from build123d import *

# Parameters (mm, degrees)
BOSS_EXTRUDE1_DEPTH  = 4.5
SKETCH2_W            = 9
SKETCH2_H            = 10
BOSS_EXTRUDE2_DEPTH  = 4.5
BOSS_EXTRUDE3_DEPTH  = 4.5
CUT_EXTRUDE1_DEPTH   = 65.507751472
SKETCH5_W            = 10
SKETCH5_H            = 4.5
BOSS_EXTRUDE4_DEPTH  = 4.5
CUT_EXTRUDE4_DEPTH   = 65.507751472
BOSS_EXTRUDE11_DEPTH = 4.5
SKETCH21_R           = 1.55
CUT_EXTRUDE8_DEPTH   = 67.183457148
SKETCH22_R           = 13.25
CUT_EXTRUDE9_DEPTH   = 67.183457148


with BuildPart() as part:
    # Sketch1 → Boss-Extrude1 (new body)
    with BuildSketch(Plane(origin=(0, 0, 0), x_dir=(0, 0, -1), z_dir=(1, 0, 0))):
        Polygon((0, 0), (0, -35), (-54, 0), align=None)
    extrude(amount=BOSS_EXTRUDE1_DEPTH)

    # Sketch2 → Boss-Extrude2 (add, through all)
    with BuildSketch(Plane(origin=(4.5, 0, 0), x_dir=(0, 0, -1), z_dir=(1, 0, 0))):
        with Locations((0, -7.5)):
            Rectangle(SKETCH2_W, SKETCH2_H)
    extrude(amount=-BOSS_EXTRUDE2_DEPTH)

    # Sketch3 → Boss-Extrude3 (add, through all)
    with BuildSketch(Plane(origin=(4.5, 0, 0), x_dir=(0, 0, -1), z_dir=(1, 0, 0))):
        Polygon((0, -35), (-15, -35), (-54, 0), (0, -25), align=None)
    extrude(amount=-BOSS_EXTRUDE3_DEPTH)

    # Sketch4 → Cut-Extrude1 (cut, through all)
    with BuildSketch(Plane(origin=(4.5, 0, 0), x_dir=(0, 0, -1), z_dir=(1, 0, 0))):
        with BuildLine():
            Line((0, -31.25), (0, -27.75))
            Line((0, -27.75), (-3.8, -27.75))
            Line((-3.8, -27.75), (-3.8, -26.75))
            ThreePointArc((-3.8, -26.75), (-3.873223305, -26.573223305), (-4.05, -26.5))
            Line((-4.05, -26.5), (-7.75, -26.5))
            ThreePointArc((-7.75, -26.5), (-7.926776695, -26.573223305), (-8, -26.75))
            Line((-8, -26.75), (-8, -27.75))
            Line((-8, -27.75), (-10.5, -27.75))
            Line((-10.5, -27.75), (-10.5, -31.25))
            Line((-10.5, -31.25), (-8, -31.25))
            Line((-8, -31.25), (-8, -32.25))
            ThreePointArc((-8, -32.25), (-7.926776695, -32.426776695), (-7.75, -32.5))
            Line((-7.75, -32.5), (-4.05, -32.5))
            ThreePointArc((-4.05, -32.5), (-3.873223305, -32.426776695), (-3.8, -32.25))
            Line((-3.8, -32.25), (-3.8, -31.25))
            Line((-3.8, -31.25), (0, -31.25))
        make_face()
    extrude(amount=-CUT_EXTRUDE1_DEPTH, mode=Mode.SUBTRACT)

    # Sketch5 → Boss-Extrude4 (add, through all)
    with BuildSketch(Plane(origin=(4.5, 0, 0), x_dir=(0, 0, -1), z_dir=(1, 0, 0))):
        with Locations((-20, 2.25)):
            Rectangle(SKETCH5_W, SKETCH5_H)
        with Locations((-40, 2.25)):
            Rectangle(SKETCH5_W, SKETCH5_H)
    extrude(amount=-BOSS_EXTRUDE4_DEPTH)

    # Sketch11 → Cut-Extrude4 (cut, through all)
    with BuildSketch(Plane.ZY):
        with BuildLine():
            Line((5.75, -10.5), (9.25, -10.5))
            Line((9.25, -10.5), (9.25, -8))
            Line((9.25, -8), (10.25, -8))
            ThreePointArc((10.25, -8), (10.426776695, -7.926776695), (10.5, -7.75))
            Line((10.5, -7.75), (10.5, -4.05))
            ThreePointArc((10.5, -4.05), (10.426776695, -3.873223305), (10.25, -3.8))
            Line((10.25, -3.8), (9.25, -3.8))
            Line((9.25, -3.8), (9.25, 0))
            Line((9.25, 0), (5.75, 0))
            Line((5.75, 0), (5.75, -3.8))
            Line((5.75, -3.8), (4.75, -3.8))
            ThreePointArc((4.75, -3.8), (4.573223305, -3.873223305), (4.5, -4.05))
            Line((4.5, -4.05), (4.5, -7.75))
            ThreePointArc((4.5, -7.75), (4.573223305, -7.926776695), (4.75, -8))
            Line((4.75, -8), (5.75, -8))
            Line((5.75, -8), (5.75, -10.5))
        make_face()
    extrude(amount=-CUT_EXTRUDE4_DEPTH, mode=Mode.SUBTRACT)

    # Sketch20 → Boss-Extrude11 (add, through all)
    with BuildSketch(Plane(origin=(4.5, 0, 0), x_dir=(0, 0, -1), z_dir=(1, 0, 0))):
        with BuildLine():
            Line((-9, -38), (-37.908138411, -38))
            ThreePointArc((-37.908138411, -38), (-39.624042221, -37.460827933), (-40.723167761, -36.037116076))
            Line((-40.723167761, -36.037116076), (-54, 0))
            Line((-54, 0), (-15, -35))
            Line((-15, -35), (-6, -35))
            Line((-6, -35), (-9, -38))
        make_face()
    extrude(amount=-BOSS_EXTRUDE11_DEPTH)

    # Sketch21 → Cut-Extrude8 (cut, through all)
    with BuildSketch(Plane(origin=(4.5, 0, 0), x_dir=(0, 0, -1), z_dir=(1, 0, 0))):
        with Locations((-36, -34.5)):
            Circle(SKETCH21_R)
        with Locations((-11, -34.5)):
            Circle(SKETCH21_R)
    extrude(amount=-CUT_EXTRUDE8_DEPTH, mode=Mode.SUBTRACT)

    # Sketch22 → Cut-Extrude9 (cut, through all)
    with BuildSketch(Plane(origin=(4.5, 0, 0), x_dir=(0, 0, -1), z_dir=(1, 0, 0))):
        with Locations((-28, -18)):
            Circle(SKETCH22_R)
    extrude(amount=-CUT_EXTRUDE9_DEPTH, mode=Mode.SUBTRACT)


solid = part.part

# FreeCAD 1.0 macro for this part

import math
import FreeCAD as App
import Part
import Sketcher

V = App.Vector
Q = App.Units.Quantity

doc = App.newDocument("Part")
params = doc.addObject("Spreadsheet::Sheet", "Params")
for row, (alias, value) in enumerate([
    ("sketch1_width", "35 mm"),
    ("sketch1_height", "54 mm"),
    ("pad1_length", "4.5 mm"),
    ("sketch2_width", "10 mm"),
    ("sketch2_height", "9 mm"),
    ("sketch3_width", "10 mm"),
    ("sketch3_height", "15 mm"),
    ("sketch4_width", "1 mm"),
    ("sketch4_radius", "0.25 mm"),
    ("sketch4_width2", "3.5 mm"),
    ("sketch4_height", "3.8 mm"),
    ("sketch4_height2", "3.7 mm"),
    ("sketch5_height", "10 mm"),
    ("sketch5_width", "4.5 mm"),
    ("pad4_length", "4.5 mm"),
    ("sketch6_height", "1 mm"),
    ("sketch6_radius", "0.25 mm"),
    ("sketch6_width", "2.5 mm"),
    ("sketch6_width2", "3.7 mm"),
    ("sketch6_width3", "3.8 mm"),
    ("sketch7_radius", "3 mm"),
    ("sketch7_height", "9 mm"),
    ("pad5_length", "4.5 mm"),
    ("sketch8_diameter", "3.1 mm"),
    ("sketch9_diameter", "26.5 mm"),
], start=1):
    params.set(f"A{row}", alias)
    params.set(f"B{row}", "=" + value)
    params.setAlias(f"B{row}", alias)

body = doc.addObject("PartDesign::Body", "Body")

sketch1 = body.newObject("Sketcher::SketchObject", "Sketch")
sketch1.AttachmentSupport = (doc.getObject("YZ_Plane"), [""])
sketch1.MapMode = "FlatFace"
sketch1.addGeometry(Part.LineSegment(V(-35, 0, 0), V(0, 0, 0)), False)
sketch1.addGeometry(Part.LineSegment(V(0, 0, 0), V(0, 54, 0)), False)
sketch1.addGeometry(Part.LineSegment(V(0, 54, 0), V(-35, 0, 0)), False)
sketch1.addConstraint(Sketcher.Constraint("Coincident", 0, 2, 1, 1))
sketch1.addConstraint(Sketcher.Constraint("Coincident", 1, 2, 2, 1))
sketch1.addConstraint(Sketcher.Constraint("Coincident", 2, 2, 0, 1))
sketch1.addConstraint(Sketcher.Constraint("Horizontal", 0))
sketch1.addConstraint(Sketcher.Constraint("Vertical", 1))
sketch1.addConstraint(Sketcher.Constraint("Coincident", 0, 2, -1, 1))
sketch1.addConstraint(Sketcher.Constraint("DistanceX", 0, 1, 0, 2, Q("35 mm")))
sketch1.addConstraint(Sketcher.Constraint("DistanceY", 1, 1, 1, 2, Q("54 mm")))
sketch1.setExpression("Constraints[6]", "Params.sketch1_width")
sketch1.setExpression("Constraints[7]", "Params.sketch1_height")
pad1 = body.newObject("PartDesign::Pad", "Pad")
pad1.Profile = sketch1
pad1.setExpression("Length", "Params.pad1_length")

sketch2 = body.newObject("Sketcher::SketchObject", "Sketch001")
sketch2.AttachmentSupport = (doc.getObject("YZ_Plane"), [""])
sketch2.MapMode = "FlatFace"
sketch2.AttachmentOffset = App.Placement(V(0, 0, 4.5), App.Rotation())
sketch2.addGeometry(Part.LineSegment(V(-2, 4, 0), V(-12, 4, 0)), False)
sketch2.addGeometry(Part.LineSegment(V(-12, 4, 0), V(-12, -4, 0)), False)
sketch2.addGeometry(Part.LineSegment(V(-12, -4, 0), V(-2, -4, 0)), False)
sketch2.addGeometry(Part.LineSegment(V(-2, -4, 0), V(-2, 4, 0)), False)
sketch2.addConstraint(Sketcher.Constraint("Coincident", 0, 2, 1, 1))
sketch2.addConstraint(Sketcher.Constraint("Coincident", 1, 2, 2, 1))
sketch2.addConstraint(Sketcher.Constraint("Coincident", 2, 2, 3, 1))
sketch2.addConstraint(Sketcher.Constraint("Coincident", 3, 2, 0, 1))
sketch2.addConstraint(Sketcher.Constraint("Horizontal", 0))
sketch2.addConstraint(Sketcher.Constraint("Vertical", 1))
sketch2.addConstraint(Sketcher.Constraint("Horizontal", 2))
sketch2.addConstraint(Sketcher.Constraint("Vertical", 3))
sketch2.addConstraint(Sketcher.Constraint("DistanceX", 0, 2, 0, 1, Q("10 mm")))
sketch2.addConstraint(Sketcher.Constraint("DistanceY", 1, 2, 1, 1, Q("9 mm")))
sketch2.addConstraint(Sketcher.Constraint("DistanceX", 0, 2, -1, 1, Q("12.5 mm")))
sketch2.addConstraint(Sketcher.Constraint("DistanceY", -1, 1, 0, 2, Q("4.5 mm")))
sketch2.setExpression("Constraints[8]", "Params.sketch2_width")
sketch2.setExpression("Constraints[9]", "Params.sketch2_height")
pad2 = body.newObject("PartDesign::Pad", "Pad001")
pad2.Profile = sketch2
pad2.Type = "UpToLast"
pad2.Reversed = True

sketch3 = body.newObject("Sketcher::SketchObject", "Sketch002")
sketch3.AttachmentSupport = (doc.getObject("YZ_Plane"), [""])
sketch3.MapMode = "FlatFace"
sketch3.AttachmentOffset = App.Placement(V(0, 0, 4.5), App.Rotation())
sketch3.addGeometry(Part.LineSegment(V(-35, 15, 0), V(-35, 0, 0)), False)
sketch3.addGeometry(Part.LineSegment(V(-35, 0, 0), V(-25, 0, 0)), False)
sketch3.addGeometry(Part.LineSegment(V(-25, 0, 0), V(0, 54, 0)), False)
sketch3.addGeometry(Part.LineSegment(V(0, 54, 0), V(-35, 15, 0)), False)
sketch3.addConstraint(Sketcher.Constraint("Coincident", 0, 2, 1, 1))
sketch3.addConstraint(Sketcher.Constraint("Coincident", 1, 2, 2, 1))
sketch3.addConstraint(Sketcher.Constraint("Coincident", 2, 2, 3, 1))
sketch3.addConstraint(Sketcher.Constraint("Coincident", 3, 2, 0, 1))
sketch3.addConstraint(Sketcher.Constraint("Vertical", 0))
sketch3.addConstraint(Sketcher.Constraint("Horizontal", 1))
sketch3.addConstraint(Sketcher.Constraint("PointOnObject", 0, 2, -1))
sketch3.addConstraint(Sketcher.Constraint("PointOnObject", 2, 2, -2))
sketch3.addConstraint(Sketcher.Constraint("DistanceX", 1, 1, 1, 2, Q("10 mm")))
sketch3.addConstraint(Sketcher.Constraint("DistanceY", 0, 2, 0, 1, Q("15 mm")))
sketch3.addConstraint(Sketcher.Constraint("DistanceX", 0, 2, -1, 1, Q("35 mm")))
sketch3.addConstraint(Sketcher.Constraint("DistanceY", -1, 1, 2, 2, Q("54 mm")))
sketch3.setExpression("Constraints[8]", "Params.sketch3_width")
sketch3.setExpression("Constraints[9]", "Params.sketch3_height")
pad3 = body.newObject("PartDesign::Pad", "Pad002")
pad3.Profile = sketch3
pad3.Type = "UpToLast"
pad3.Reversed = True

sketch4 = body.newObject("Sketcher::SketchObject", "Sketch003")
sketch4.AttachmentSupport = (doc.getObject("YZ_Plane"), [""])
sketch4.MapMode = "FlatFace"
sketch4.AttachmentOffset = App.Placement(V(0, 0, 4.5), App.Rotation())
sketch4.addGeometry(Part.LineSegment(V(-31.25, 0, 0), V(-27.75, 0, 0)), False)
sketch4.addGeometry(Part.LineSegment(V(-27.75, 0, 0), V(-27.75, 3.8, 0)), False)
sketch4.addGeometry(Part.LineSegment(V(-27.75, 3.8, 0), V(-26.75, 3.8, 0)), False)
sketch4.addGeometry(Part.ArcOfCircle(Part.Circle(V(-26.75, 4.05, 0), V(0, 0, 1), 0.25), math.radians(-90), math.radians(0)), False)
sketch4.addGeometry(Part.LineSegment(V(-26.5, 4.05, 0), V(-26.5, 7.75, 0)), False)
sketch4.addGeometry(Part.ArcOfCircle(Part.Circle(V(-26.75, 7.75, 0), V(0, 0, 1), 0.25), math.radians(0), math.radians(90)), False)
sketch4.addGeometry(Part.LineSegment(V(-26.75, 8, 0), V(-27.75, 8, 0)), False)
sketch4.addGeometry(Part.LineSegment(V(-27.75, 8, 0), V(-27.75, 10.5, 0)), False)
sketch4.addGeometry(Part.LineSegment(V(-27.75, 10.5, 0), V(-31.25, 10.5, 0)), False)
sketch4.addGeometry(Part.LineSegment(V(-31.25, 10.5, 0), V(-31.25, 8, 0)), False)
sketch4.addGeometry(Part.LineSegment(V(-31.25, 8, 0), V(-32.25, 8, 0)), False)
sketch4.addGeometry(Part.ArcOfCircle(Part.Circle(V(-32.25, 7.75, 0), V(0, 0, 1), 0.25), math.radians(90), math.radians(180)), False)
sketch4.addGeometry(Part.LineSegment(V(-32.5, 7.75, 0), V(-32.5, 4.05, 0)), False)
sketch4.addGeometry(Part.ArcOfCircle(Part.Circle(V(-32.25, 4.05, 0), V(0, 0, 1), 0.25), math.radians(-180), math.radians(-90)), False)
sketch4.addGeometry(Part.LineSegment(V(-32.25, 3.8, 0), V(-31.25, 3.8, 0)), False)
sketch4.addGeometry(Part.LineSegment(V(-31.25, 3.8, 0), V(-31.25, 0, 0)), False)
sketch4.addConstraint(Sketcher.Constraint("Coincident", 0, 2, 1, 1))
sketch4.addConstraint(Sketcher.Constraint("Coincident", 1, 2, 2, 1))
sketch4.addConstraint(Sketcher.Constraint("Tangent", 2, 2, 3, 1))
sketch4.addConstraint(Sketcher.Constraint("Tangent", 3, 2, 4, 1))
sketch4.addConstraint(Sketcher.Constraint("Tangent", 4, 2, 5, 1))
sketch4.addConstraint(Sketcher.Constraint("Tangent", 5, 2, 6, 1))
sketch4.addConstraint(Sketcher.Constraint("Coincident", 6, 2, 7, 1))
sketch4.addConstraint(Sketcher.Constraint("Coincident", 7, 2, 8, 1))
sketch4.addConstraint(Sketcher.Constraint("Coincident", 8, 2, 9, 1))
sketch4.addConstraint(Sketcher.Constraint("Coincident", 9, 2, 10, 1))
sketch4.addConstraint(Sketcher.Constraint("Tangent", 10, 2, 11, 1))
sketch4.addConstraint(Sketcher.Constraint("Tangent", 11, 2, 12, 1))
sketch4.addConstraint(Sketcher.Constraint("Tangent", 12, 2, 13, 1))
sketch4.addConstraint(Sketcher.Constraint("Tangent", 13, 2, 14, 1))
sketch4.addConstraint(Sketcher.Constraint("Coincident", 14, 2, 15, 1))
sketch4.addConstraint(Sketcher.Constraint("Coincident", 15, 2, 0, 1))
sketch4.addConstraint(Sketcher.Constraint("Horizontal", 0))
sketch4.addConstraint(Sketcher.Constraint("Vertical", 1))
sketch4.addConstraint(Sketcher.Constraint("Horizontal", 2))
sketch4.addConstraint(Sketcher.Constraint("Vertical", 4))
sketch4.addConstraint(Sketcher.Constraint("Horizontal", 6))
sketch4.addConstraint(Sketcher.Constraint("Vertical", 7))
sketch4.addConstraint(Sketcher.Constraint("Horizontal", 8))
sketch4.addConstraint(Sketcher.Constraint("Vertical", 9))
sketch4.addConstraint(Sketcher.Constraint("Horizontal", 10))
sketch4.addConstraint(Sketcher.Constraint("Vertical", 12))
sketch4.addConstraint(Sketcher.Constraint("Horizontal", 14))
sketch4.addConstraint(Sketcher.Constraint("Vertical", 15))
sketch4.addConstraint(Sketcher.Constraint("Equal", 3, 5))
sketch4.addConstraint(Sketcher.Constraint("Equal", 5, 11))
sketch4.addConstraint(Sketcher.Constraint("Equal", 11, 13))
sketch4.addConstraint(Sketcher.Constraint("PointOnObject", 0, 2, -1))
sketch4.addConstraint(Sketcher.Constraint("Horizontal", 5, 3, 11, 3))
sketch4.addConstraint(Sketcher.Constraint("Horizontal", 3, 3, 13, 3))
sketch4.addConstraint(Sketcher.Constraint("Vertical", 1, 2, 6, 2))
sketch4.addConstraint(Sketcher.Constraint("Vertical", 9, 2, 14, 2))
sketch4.addConstraint(Sketcher.Constraint("Equal", 6, 10))
sketch4.addConstraint(Sketcher.Constraint("DistanceX", 2, 1, 2, 2, Q("1 mm")))
sketch4.addConstraint(Sketcher.Constraint("Radius", 3, Q("0.25 mm")))
sketch4.addConstraint(Sketcher.Constraint("DistanceX", 0, 1, 0, 2, Q("3.5 mm")))
sketch4.addConstraint(Sketcher.Constraint("DistanceY", 1, 1, 1, 2, Q("3.8 mm")))
sketch4.addConstraint(Sketcher.Constraint("DistanceY", 4, 1, 4, 2, Q("3.7 mm")))
sketch4.addConstraint(Sketcher.Constraint("DistanceY", 7, 1, 7, 2, Q("2.5 mm")))
sketch4.addConstraint(Sketcher.Constraint("DistanceX", 3, 2, -1, 1, Q("26.5 mm")))
sketch4.setExpression("Constraints[37]", "Params.sketch4_width")
sketch4.setExpression("Constraints[38]", "Params.sketch4_radius")
sketch4.setExpression("Constraints[39]", "Params.sketch4_width2")
sketch4.setExpression("Constraints[40]", "Params.sketch4_height")
sketch4.setExpression("Constraints[41]", "Params.sketch4_height2")
pocket1 = body.newObject("PartDesign::Pocket", "Pocket")
pocket1.Profile = sketch4
pocket1.Type = "ThroughAll"

sketch5 = body.newObject("Sketcher::SketchObject", "Sketch004")
sketch5.AttachmentSupport = (doc.getObject("YZ_Plane"), [""])
sketch5.MapMode = "FlatFace"
sketch5.AttachmentOffset = App.Placement(V(0, 0, 4.5), App.Rotation())
sketch5.addGeometry(Part.LineSegment(V(4.5, 25, 0), V(0, 25, 0)), False)
sketch5.addGeometry(Part.LineSegment(V(0, 25, 0), V(0, 15, 0)), False)
sketch5.addGeometry(Part.LineSegment(V(0, 15, 0), V(4.5, 15, 0)), False)
sketch5.addGeometry(Part.LineSegment(V(4.5, 15, 0), V(4.5, 25, 0)), False)
sketch5.addGeometry(Part.LineSegment(V(4.5, 45, 0), V(0, 45, 0)), False)
sketch5.addGeometry(Part.LineSegment(V(0, 45, 0), V(0, 35, 0)), False)
sketch5.addGeometry(Part.LineSegment(V(0, 35, 0), V(4.5, 35, 0)), False)
sketch5.addGeometry(Part.LineSegment(V(4.5, 35, 0), V(4.5, 45, 0)), False)
sketch5.addConstraint(Sketcher.Constraint("Coincident", 0, 2, 1, 1))
sketch5.addConstraint(Sketcher.Constraint("Coincident", 1, 2, 2, 1))
sketch5.addConstraint(Sketcher.Constraint("Coincident", 2, 2, 3, 1))
sketch5.addConstraint(Sketcher.Constraint("Coincident", 3, 2, 0, 1))
sketch5.addConstraint(Sketcher.Constraint("Coincident", 4, 2, 5, 1))
sketch5.addConstraint(Sketcher.Constraint("Coincident", 5, 2, 6, 1))
sketch5.addConstraint(Sketcher.Constraint("Coincident", 6, 2, 7, 1))
sketch5.addConstraint(Sketcher.Constraint("Coincident", 7, 2, 4, 1))
sketch5.addConstraint(Sketcher.Constraint("Horizontal", 0))
sketch5.addConstraint(Sketcher.Constraint("Vertical", 1))
sketch5.addConstraint(Sketcher.Constraint("Horizontal", 2))
sketch5.addConstraint(Sketcher.Constraint("Vertical", 3))
sketch5.addConstraint(Sketcher.Constraint("Horizontal", 4))
sketch5.addConstraint(Sketcher.Constraint("Vertical", 5))
sketch5.addConstraint(Sketcher.Constraint("Horizontal", 6))
sketch5.addConstraint(Sketcher.Constraint("Vertical", 7))
sketch5.addConstraint(Sketcher.Constraint("PointOnObject", 0, 2, -2))
sketch5.addConstraint(Sketcher.Constraint("PointOnObject", 4, 2, -2))
sketch5.addConstraint(Sketcher.Constraint("Vertical", 3, 2, 6, 2))
sketch5.addConstraint(Sketcher.Constraint("Equal", 3, 5))
sketch5.addConstraint(Sketcher.Constraint("DistanceY", 1, 2, 1, 1, Q("10 mm")))
sketch5.addConstraint(Sketcher.Constraint("DistanceX", 0, 2, 0, 1, Q("4.5 mm")))
sketch5.addConstraint(Sketcher.Constraint("DistanceY", -1, 1, 0, 2, Q("25 mm")))
sketch5.addConstraint(Sketcher.Constraint("DistanceY", -1, 1, 4, 2, Q("45 mm")))
sketch5.setExpression("Constraints[20]", "Params.sketch5_height")
sketch5.setExpression("Constraints[21]", "Params.sketch5_width")
pad4 = body.newObject("PartDesign::Pad", "Pad003")
pad4.Profile = sketch5
pad4.setExpression("Length", "Params.pad4_length")
pad4.Reversed = True

sketch6 = body.newObject("Sketcher::SketchObject", "Sketch005")
sketch6.AttachmentSupport = (doc.getObject("YZ_Plane"), [""])
sketch6.MapMode = "FlatFace"
sketch6.addGeometry(Part.LineSegment(V(-10.5, 5.75, 0), V(-10.5, 9.25, 0)), False)
sketch6.addGeometry(Part.LineSegment(V(-10.5, 9.25, 0), V(-8, 9.25, 0)), False)
sketch6.addGeometry(Part.LineSegment(V(-8, 9.25, 0), V(-8, 10.25, 0)), False)
sketch6.addGeometry(Part.ArcOfCircle(Part.Circle(V(-7.75, 10.25, 0), V(0, 0, 1), 0.25), math.radians(90), math.radians(180)), False)
sketch6.addGeometry(Part.LineSegment(V(-7.75, 10.5, 0), V(-4.05, 10.5, 0)), False)
sketch6.addGeometry(Part.ArcOfCircle(Part.Circle(V(-4.05, 10.25, 0), V(0, 0, 1), 0.25), math.radians(0), math.radians(90)), False)
sketch6.addGeometry(Part.LineSegment(V(-3.8, 10.25, 0), V(-3.8, 9.25, 0)), False)
sketch6.addGeometry(Part.LineSegment(V(-3.8, 9.25, 0), V(0, 9.25, 0)), False)
sketch6.addGeometry(Part.LineSegment(V(0, 9.25, 0), V(0, 5.75, 0)), False)
sketch6.addGeometry(Part.LineSegment(V(0, 5.75, 0), V(-3.8, 5.75, 0)), False)
sketch6.addGeometry(Part.LineSegment(V(-3.8, 5.75, 0), V(-3.8, 4.75, 0)), False)
sketch6.addGeometry(Part.ArcOfCircle(Part.Circle(V(-4.05, 4.75, 0), V(0, 0, 1), 0.25), math.radians(-90), math.radians(0)), False)
sketch6.addGeometry(Part.LineSegment(V(-4.05, 4.5, 0), V(-7.75, 4.5, 0)), False)
sketch6.addGeometry(Part.ArcOfCircle(Part.Circle(V(-7.75, 4.75, 0), V(0, 0, 1), 0.25), math.radians(-180), math.radians(-90)), False)
sketch6.addGeometry(Part.LineSegment(V(-8, 4.75, 0), V(-8, 5.75, 0)), False)
sketch6.addGeometry(Part.LineSegment(V(-8, 5.75, 0), V(-10.5, 5.75, 0)), False)
sketch6.addConstraint(Sketcher.Constraint("Coincident", 0, 2, 1, 1))
sketch6.addConstraint(Sketcher.Constraint("Coincident", 1, 2, 2, 1))
sketch6.addConstraint(Sketcher.Constraint("Tangent", 2, 2, 3, 2))
sketch6.addConstraint(Sketcher.Constraint("Tangent", 3, 1, 4, 1))
sketch6.addConstraint(Sketcher.Constraint("Tangent", 4, 2, 5, 2))
sketch6.addConstraint(Sketcher.Constraint("Tangent", 5, 1, 6, 1))
sketch6.addConstraint(Sketcher.Constraint("Coincident", 6, 2, 7, 1))
sketch6.addConstraint(Sketcher.Constraint("Coincident", 7, 2, 8, 1))
sketch6.addConstraint(Sketcher.Constraint("Coincident", 8, 2, 9, 1))
sketch6.addConstraint(Sketcher.Constraint("Coincident", 9, 2, 10, 1))
sketch6.addConstraint(Sketcher.Constraint("Tangent", 10, 2, 11, 2))
sketch6.addConstraint(Sketcher.Constraint("Tangent", 11, 1, 12, 1))
sketch6.addConstraint(Sketcher.Constraint("Tangent", 12, 2, 13, 2))
sketch6.addConstraint(Sketcher.Constraint("Tangent", 13, 1, 14, 1))
sketch6.addConstraint(Sketcher.Constraint("Coincident", 14, 2, 15, 1))
sketch6.addConstraint(Sketcher.Constraint("Coincident", 15, 2, 0, 1))
sketch6.addConstraint(Sketcher.Constraint("Vertical", 0))
sketch6.addConstraint(Sketcher.Constraint("Horizontal", 1))
sketch6.addConstraint(Sketcher.Constraint("Vertical", 2))
sketch6.addConstraint(Sketcher.Constraint("Horizontal", 4))
sketch6.addConstraint(Sketcher.Constraint("Vertical", 6))
sketch6.addConstraint(Sketcher.Constraint("Horizontal", 7))
sketch6.addConstraint(Sketcher.Constraint("Vertical", 8))
sketch6.addConstraint(Sketcher.Constraint("Horizontal", 9))
sketch6.addConstraint(Sketcher.Constraint("Vertical", 10))
sketch6.addConstraint(Sketcher.Constraint("Horizontal", 12))
sketch6.addConstraint(Sketcher.Constraint("Vertical", 14))
sketch6.addConstraint(Sketcher.Constraint("Horizontal", 15))
sketch6.addConstraint(Sketcher.Constraint("Equal", 3, 5))
sketch6.addConstraint(Sketcher.Constraint("Equal", 5, 11))
sketch6.addConstraint(Sketcher.Constraint("Equal", 11, 13))
sketch6.addConstraint(Sketcher.Constraint("PointOnObject", 7, 2, -2))
sketch6.addConstraint(Sketcher.Constraint("Horizontal", 1, 2, 6, 2))
sketch6.addConstraint(Sketcher.Constraint("Horizontal", 9, 2, 14, 2))
sketch6.addConstraint(Sketcher.Constraint("Vertical", 5, 3, 11, 3))
sketch6.addConstraint(Sketcher.Constraint("Vertical", 3, 3, 13, 3))
sketch6.addConstraint(Sketcher.Constraint("Equal", 6, 10))
sketch6.addConstraint(Sketcher.Constraint("DistanceY", 2, 1, 2, 2, Q("1 mm")))
sketch6.addConstraint(Sketcher.Constraint("Radius", 3, Q("0.25 mm")))
sketch6.addConstraint(Sketcher.Constraint("DistanceX", 1, 1, 1, 2, Q("2.5 mm")))
sketch6.addConstraint(Sketcher.Constraint("DistanceX", 4, 1, 4, 2, Q("3.7 mm")))
sketch6.addConstraint(Sketcher.Constraint("DistanceX", 7, 1, 7, 2, Q("3.8 mm")))
sketch6.addConstraint(Sketcher.Constraint("DistanceY", 0, 1, 0, 2, Q("3.5 mm")))
sketch6.addConstraint(Sketcher.Constraint("DistanceY", -1, 1, 3, 1, Q("10.5 mm")))
sketch6.setExpression("Constraints[37]", "Params.sketch6_height")
sketch6.setExpression("Constraints[38]", "Params.sketch6_radius")
sketch6.setExpression("Constraints[39]", "Params.sketch6_width")
sketch6.setExpression("Constraints[40]", "Params.sketch6_width2")
sketch6.setExpression("Constraints[41]", "Params.sketch6_width3")
pocket2 = body.newObject("PartDesign::Pocket", "Pocket001")
pocket2.Profile = sketch6
pocket2.Type = "ThroughAll"
pocket2.Reversed = True

sketch7 = body.newObject("Sketcher::SketchObject", "Sketch006")
sketch7.AttachmentSupport = (doc.getObject("YZ_Plane"), [""])
sketch7.MapMode = "FlatFace"
sketch7.AttachmentOffset = App.Placement(V(0, 0, 4.5), App.Rotation())
sketch7.addGeometry(Part.LineSegment(V(-38, 37.9, 0), V(-38, 9, 0)), False)
sketch7.addGeometry(Part.LineSegment(V(-38, 9, 0), V(-35, 6, 0)), False)
sketch7.addGeometry(Part.LineSegment(V(-35, 6, 0), V(-35, 15, 0)), False)
sketch7.addGeometry(Part.LineSegment(V(-35, 15, 0), V(0, 54, 0)), False)
sketch7.addGeometry(Part.LineSegment(V(0, 54, 0), V(-36, 40.7, 0)), False)
sketch7.addGeometry(Part.ArcOfCircle(Part.Circle(V(-35, 37.9, 0), V(0, 0, 1), 3), math.radians(110), math.radians(180)), False)
sketch7.addConstraint(Sketcher.Constraint("Coincident", 0, 2, 1, 1))
sketch7.addConstraint(Sketcher.Constraint("Coincident", 1, 2, 2, 1))
sketch7.addConstraint(Sketcher.Constraint("Coincident", 2, 2, 3, 1))
sketch7.addConstraint(Sketcher.Constraint("Coincident", 3, 2, 4, 1))
sketch7.addConstraint(Sketcher.Constraint("Tangent", 4, 2, 5, 1))
sketch7.addConstraint(Sketcher.Constraint("Tangent", 5, 2, 0, 1))
sketch7.addConstraint(Sketcher.Constraint("Vertical", 0))
sketch7.addConstraint(Sketcher.Constraint("Vertical", 2))
sketch7.addConstraint(Sketcher.Constraint("PointOnObject", 3, 2, -2))
sketch7.addConstraint(Sketcher.Constraint("Vertical", 5, 3, 1, 2))
sketch7.addConstraint(Sketcher.Constraint("Radius", 5, Q("3 mm")))
sketch7.addConstraint(Sketcher.Constraint("DistanceY", 2, 1, 2, 2, Q("9 mm")))
sketch7.addConstraint(Sketcher.Constraint("Angle", 1, Q("-45 deg")))
sketch7.addConstraint(Sketcher.Constraint("DistanceX", 5, 3, -1, 1, Q("35 mm")))
sketch7.addConstraint(Sketcher.Constraint("DistanceY", -1, 1, 0, 2, Q("9 mm")))
sketch7.addConstraint(Sketcher.Constraint("DistanceY", -1, 1, 3, 2, Q("54 mm")))
sketch7.addConstraint(Sketcher.Constraint("DistanceY", 0, 2, 0, 1, Q("28.908138 mm")))
sketch7.setExpression("Constraints[10]", "Params.sketch7_radius")
sketch7.setExpression("Constraints[11]", "Params.sketch7_height")
pad5 = body.newObject("PartDesign::Pad", "Pad004")
pad5.Profile = sketch7
pad5.setExpression("Length", "Params.pad5_length")
pad5.Reversed = True

sketch8 = body.newObject("Sketcher::SketchObject", "Sketch007")
sketch8.AttachmentSupport = (doc.getObject("YZ_Plane"), [""])
sketch8.MapMode = "FlatFace"
sketch8.AttachmentOffset = App.Placement(V(0, 0, 4.5), App.Rotation())
sketch8.addGeometry(Part.Circle(V(-34.5, 36, 0), V(0, 0, 1), 1.6), False)
sketch8.addGeometry(Part.Circle(V(-34.5, 11, 0), V(0, 0, 1), 1.6), False)
sketch8.addConstraint(Sketcher.Constraint("Equal", 0, 1))
sketch8.addConstraint(Sketcher.Constraint("Vertical", 0, 3, 1, 3))
sketch8.addConstraint(Sketcher.Constraint("Diameter", 0, Q("3.1 mm")))
sketch8.addConstraint(Sketcher.Constraint("DistanceY", -1, 1, 0, 3, Q("36 mm")))
sketch8.addConstraint(Sketcher.Constraint("DistanceY", -1, 1, 1, 3, Q("11 mm")))
sketch8.addConstraint(Sketcher.Constraint("DistanceX", 0, 3, -1, 1, Q("34.5 mm")))
sketch8.setExpression("Constraints[2]", "Params.sketch8_diameter")
pocket3 = body.newObject("PartDesign::Pocket", "Pocket002")
pocket3.Profile = sketch8
pocket3.Type = "ThroughAll"

sketch9 = body.newObject("Sketcher::SketchObject", "Sketch008")
sketch9.AttachmentSupport = (doc.getObject("YZ_Plane"), [""])
sketch9.MapMode = "FlatFace"
sketch9.AttachmentOffset = App.Placement(V(0, 0, 4.5), App.Rotation())
sketch9.addGeometry(Part.Circle(V(-18, 28, 0), V(0, 0, 1), 13), False)
sketch9.addConstraint(Sketcher.Constraint("Diameter", 0, Q("26.5 mm")))
sketch9.addConstraint(Sketcher.Constraint("DistanceX", 0, 3, -1, 1, Q("18 mm")))
sketch9.addConstraint(Sketcher.Constraint("DistanceY", -1, 1, 0, 3, Q("28 mm")))
sketch9.setExpression("Constraints[0]", "Params.sketch9_diameter")
pocket4 = body.newObject("PartDesign::Pocket", "Pocket003")
pocket4.Profile = sketch9
pocket4.Type = "ThroughAll"

doc.recompute()
